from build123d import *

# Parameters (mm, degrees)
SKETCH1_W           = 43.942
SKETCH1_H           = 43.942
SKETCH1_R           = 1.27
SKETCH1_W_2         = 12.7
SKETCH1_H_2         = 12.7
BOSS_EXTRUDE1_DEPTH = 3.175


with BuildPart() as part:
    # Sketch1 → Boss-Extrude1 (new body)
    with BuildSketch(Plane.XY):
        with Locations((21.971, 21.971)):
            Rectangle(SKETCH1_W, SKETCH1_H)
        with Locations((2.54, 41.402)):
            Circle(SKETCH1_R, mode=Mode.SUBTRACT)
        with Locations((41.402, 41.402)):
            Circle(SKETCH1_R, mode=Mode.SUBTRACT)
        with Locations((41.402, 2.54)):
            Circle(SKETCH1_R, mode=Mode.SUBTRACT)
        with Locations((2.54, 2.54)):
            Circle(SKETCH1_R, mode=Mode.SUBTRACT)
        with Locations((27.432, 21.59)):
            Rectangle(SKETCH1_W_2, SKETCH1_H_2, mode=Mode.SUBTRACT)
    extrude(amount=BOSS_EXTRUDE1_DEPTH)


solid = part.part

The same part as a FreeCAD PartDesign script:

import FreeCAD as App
import Part
import Sketcher
from FreeCAD import Vector
Q = App.Units.Quantity


def add_polygon(sketch, points):
    """Adds a closed chain of lines whose ends are joined by coincident constraints."""
    first, n = sketch.GeometryCount, len(points)
    for a, b in zip(points, points[1:] + points[:1]):
        sketch.addGeometry(Part.LineSegment(App.Vector(*a, 0), App.Vector(*b, 0)), False)
    for i in range(n):
        sketch.addConstraint(Sketcher.Constraint("Coincident", first + i, 2, first + (i + 1) % n, 1))

doc = App.newDocument("Part")
body = doc.addObject("PartDesign::Body", "Body")

# Sketch on XY plane
sketch1 = body.newObject("Sketcher::SketchObject", "Sketch")
sketch1.AttachmentSupport = (doc.getObject("XY_Plane"), [""])
sketch1.MapMode = "FlatFace"
add_polygon(sketch1, [(0, 43.942), (0, 0), (43.942, 0), (43.942, 43.942)])  # lines 0-3
sketch1.addGeometry(Part.Circle(Vector(2.54, 2.54, 0), Vector(0, 0, 1), 1.27), False)  # 4
sketch1.addGeometry(Part.Circle(Vector(41.402, 2.54, 0), Vector(0, 0, 1), 1.27), False)  # 5
add_polygon(sketch1, [(33.782, 15.24), (21.082, 15.24), (21.082, 27.94), (33.782, 27.94)])  # lines 6-9
sketch1.addGeometry(Part.Circle(Vector(2.54, 41.402, 0), Vector(0, 0, 1), 1.27), False)  # 10
sketch1.addGeometry(Part.Circle(Vector(41.402, 41.402, 0), Vector(0, 0, 1), 1.27), False)  # 11
sketch1.addConstraint([
    Sketcher.Constraint("Vertical", 0),
    Sketcher.Constraint("Horizontal", 1),
    Sketcher.Constraint("Vertical", 2),
    Sketcher.Constraint("Horizontal", 3),
    Sketcher.Constraint("Horizontal", 6),
    Sketcher.Constraint("Vertical", 7),
    Sketcher.Constraint("Horizontal", 8),
    Sketcher.Constraint("Vertical", 9),
    Sketcher.Constraint("Coincident", 0, 2, -1, 1),
    Sketcher.Constraint("Equal", 4, 5),
    Sketcher.Constraint("Equal", 5, 10),
    Sketcher.Constraint("Equal", 10, 11),
    Sketcher.Constraint("Horizontal", 4, 3, 5, 3),
    Sketcher.Constraint("Horizontal", 10, 3, 11, 3),
    Sketcher.Constraint("Vertical", 4, 3, 10, 3),
    Sketcher.Constraint("Vertical", 5, 3, 11, 3),
    Sketcher.Constraint("Equal", 3, 0),
    Sketcher.Constraint("Equal", 8, 7),
    Sketcher.Constraint("Diameter", 4, Q("0.1 in")),
    Sketcher.Constraint("DistanceX", 6, 2, 6, 1, Q("0.5 in")),
    Sketcher.Constraint("DistanceY", 5, 3, 8, 2, Q("1 in")),
    Sketcher.Constraint("DistanceX", 1, 1, 1, 2, Q("1.73 in")),
    Sketcher.Constraint("DistanceX", -1, 1, 4, 3, Q("0.1 in")),
    Sketcher.Constraint("DistanceY", -1, 1, 4, 3, Q("0.1 in")),
    Sketcher.Constraint("DistanceX", 5, 3, 1, 2, Q("0.1 in")),
    Sketcher.Constraint("DistanceY", 11, 3, 2, 2, Q("0.1 in")),
    Sketcher.Constraint("DistanceX", 6, 2, 5, 3, Q("0.8 in")),
])
pad1 = body.newObject("PartDesign::Pad", "Pad")
pad1.Profile = sketch1
pad1.Length = Q("0.125 in")

doc.recompute()
